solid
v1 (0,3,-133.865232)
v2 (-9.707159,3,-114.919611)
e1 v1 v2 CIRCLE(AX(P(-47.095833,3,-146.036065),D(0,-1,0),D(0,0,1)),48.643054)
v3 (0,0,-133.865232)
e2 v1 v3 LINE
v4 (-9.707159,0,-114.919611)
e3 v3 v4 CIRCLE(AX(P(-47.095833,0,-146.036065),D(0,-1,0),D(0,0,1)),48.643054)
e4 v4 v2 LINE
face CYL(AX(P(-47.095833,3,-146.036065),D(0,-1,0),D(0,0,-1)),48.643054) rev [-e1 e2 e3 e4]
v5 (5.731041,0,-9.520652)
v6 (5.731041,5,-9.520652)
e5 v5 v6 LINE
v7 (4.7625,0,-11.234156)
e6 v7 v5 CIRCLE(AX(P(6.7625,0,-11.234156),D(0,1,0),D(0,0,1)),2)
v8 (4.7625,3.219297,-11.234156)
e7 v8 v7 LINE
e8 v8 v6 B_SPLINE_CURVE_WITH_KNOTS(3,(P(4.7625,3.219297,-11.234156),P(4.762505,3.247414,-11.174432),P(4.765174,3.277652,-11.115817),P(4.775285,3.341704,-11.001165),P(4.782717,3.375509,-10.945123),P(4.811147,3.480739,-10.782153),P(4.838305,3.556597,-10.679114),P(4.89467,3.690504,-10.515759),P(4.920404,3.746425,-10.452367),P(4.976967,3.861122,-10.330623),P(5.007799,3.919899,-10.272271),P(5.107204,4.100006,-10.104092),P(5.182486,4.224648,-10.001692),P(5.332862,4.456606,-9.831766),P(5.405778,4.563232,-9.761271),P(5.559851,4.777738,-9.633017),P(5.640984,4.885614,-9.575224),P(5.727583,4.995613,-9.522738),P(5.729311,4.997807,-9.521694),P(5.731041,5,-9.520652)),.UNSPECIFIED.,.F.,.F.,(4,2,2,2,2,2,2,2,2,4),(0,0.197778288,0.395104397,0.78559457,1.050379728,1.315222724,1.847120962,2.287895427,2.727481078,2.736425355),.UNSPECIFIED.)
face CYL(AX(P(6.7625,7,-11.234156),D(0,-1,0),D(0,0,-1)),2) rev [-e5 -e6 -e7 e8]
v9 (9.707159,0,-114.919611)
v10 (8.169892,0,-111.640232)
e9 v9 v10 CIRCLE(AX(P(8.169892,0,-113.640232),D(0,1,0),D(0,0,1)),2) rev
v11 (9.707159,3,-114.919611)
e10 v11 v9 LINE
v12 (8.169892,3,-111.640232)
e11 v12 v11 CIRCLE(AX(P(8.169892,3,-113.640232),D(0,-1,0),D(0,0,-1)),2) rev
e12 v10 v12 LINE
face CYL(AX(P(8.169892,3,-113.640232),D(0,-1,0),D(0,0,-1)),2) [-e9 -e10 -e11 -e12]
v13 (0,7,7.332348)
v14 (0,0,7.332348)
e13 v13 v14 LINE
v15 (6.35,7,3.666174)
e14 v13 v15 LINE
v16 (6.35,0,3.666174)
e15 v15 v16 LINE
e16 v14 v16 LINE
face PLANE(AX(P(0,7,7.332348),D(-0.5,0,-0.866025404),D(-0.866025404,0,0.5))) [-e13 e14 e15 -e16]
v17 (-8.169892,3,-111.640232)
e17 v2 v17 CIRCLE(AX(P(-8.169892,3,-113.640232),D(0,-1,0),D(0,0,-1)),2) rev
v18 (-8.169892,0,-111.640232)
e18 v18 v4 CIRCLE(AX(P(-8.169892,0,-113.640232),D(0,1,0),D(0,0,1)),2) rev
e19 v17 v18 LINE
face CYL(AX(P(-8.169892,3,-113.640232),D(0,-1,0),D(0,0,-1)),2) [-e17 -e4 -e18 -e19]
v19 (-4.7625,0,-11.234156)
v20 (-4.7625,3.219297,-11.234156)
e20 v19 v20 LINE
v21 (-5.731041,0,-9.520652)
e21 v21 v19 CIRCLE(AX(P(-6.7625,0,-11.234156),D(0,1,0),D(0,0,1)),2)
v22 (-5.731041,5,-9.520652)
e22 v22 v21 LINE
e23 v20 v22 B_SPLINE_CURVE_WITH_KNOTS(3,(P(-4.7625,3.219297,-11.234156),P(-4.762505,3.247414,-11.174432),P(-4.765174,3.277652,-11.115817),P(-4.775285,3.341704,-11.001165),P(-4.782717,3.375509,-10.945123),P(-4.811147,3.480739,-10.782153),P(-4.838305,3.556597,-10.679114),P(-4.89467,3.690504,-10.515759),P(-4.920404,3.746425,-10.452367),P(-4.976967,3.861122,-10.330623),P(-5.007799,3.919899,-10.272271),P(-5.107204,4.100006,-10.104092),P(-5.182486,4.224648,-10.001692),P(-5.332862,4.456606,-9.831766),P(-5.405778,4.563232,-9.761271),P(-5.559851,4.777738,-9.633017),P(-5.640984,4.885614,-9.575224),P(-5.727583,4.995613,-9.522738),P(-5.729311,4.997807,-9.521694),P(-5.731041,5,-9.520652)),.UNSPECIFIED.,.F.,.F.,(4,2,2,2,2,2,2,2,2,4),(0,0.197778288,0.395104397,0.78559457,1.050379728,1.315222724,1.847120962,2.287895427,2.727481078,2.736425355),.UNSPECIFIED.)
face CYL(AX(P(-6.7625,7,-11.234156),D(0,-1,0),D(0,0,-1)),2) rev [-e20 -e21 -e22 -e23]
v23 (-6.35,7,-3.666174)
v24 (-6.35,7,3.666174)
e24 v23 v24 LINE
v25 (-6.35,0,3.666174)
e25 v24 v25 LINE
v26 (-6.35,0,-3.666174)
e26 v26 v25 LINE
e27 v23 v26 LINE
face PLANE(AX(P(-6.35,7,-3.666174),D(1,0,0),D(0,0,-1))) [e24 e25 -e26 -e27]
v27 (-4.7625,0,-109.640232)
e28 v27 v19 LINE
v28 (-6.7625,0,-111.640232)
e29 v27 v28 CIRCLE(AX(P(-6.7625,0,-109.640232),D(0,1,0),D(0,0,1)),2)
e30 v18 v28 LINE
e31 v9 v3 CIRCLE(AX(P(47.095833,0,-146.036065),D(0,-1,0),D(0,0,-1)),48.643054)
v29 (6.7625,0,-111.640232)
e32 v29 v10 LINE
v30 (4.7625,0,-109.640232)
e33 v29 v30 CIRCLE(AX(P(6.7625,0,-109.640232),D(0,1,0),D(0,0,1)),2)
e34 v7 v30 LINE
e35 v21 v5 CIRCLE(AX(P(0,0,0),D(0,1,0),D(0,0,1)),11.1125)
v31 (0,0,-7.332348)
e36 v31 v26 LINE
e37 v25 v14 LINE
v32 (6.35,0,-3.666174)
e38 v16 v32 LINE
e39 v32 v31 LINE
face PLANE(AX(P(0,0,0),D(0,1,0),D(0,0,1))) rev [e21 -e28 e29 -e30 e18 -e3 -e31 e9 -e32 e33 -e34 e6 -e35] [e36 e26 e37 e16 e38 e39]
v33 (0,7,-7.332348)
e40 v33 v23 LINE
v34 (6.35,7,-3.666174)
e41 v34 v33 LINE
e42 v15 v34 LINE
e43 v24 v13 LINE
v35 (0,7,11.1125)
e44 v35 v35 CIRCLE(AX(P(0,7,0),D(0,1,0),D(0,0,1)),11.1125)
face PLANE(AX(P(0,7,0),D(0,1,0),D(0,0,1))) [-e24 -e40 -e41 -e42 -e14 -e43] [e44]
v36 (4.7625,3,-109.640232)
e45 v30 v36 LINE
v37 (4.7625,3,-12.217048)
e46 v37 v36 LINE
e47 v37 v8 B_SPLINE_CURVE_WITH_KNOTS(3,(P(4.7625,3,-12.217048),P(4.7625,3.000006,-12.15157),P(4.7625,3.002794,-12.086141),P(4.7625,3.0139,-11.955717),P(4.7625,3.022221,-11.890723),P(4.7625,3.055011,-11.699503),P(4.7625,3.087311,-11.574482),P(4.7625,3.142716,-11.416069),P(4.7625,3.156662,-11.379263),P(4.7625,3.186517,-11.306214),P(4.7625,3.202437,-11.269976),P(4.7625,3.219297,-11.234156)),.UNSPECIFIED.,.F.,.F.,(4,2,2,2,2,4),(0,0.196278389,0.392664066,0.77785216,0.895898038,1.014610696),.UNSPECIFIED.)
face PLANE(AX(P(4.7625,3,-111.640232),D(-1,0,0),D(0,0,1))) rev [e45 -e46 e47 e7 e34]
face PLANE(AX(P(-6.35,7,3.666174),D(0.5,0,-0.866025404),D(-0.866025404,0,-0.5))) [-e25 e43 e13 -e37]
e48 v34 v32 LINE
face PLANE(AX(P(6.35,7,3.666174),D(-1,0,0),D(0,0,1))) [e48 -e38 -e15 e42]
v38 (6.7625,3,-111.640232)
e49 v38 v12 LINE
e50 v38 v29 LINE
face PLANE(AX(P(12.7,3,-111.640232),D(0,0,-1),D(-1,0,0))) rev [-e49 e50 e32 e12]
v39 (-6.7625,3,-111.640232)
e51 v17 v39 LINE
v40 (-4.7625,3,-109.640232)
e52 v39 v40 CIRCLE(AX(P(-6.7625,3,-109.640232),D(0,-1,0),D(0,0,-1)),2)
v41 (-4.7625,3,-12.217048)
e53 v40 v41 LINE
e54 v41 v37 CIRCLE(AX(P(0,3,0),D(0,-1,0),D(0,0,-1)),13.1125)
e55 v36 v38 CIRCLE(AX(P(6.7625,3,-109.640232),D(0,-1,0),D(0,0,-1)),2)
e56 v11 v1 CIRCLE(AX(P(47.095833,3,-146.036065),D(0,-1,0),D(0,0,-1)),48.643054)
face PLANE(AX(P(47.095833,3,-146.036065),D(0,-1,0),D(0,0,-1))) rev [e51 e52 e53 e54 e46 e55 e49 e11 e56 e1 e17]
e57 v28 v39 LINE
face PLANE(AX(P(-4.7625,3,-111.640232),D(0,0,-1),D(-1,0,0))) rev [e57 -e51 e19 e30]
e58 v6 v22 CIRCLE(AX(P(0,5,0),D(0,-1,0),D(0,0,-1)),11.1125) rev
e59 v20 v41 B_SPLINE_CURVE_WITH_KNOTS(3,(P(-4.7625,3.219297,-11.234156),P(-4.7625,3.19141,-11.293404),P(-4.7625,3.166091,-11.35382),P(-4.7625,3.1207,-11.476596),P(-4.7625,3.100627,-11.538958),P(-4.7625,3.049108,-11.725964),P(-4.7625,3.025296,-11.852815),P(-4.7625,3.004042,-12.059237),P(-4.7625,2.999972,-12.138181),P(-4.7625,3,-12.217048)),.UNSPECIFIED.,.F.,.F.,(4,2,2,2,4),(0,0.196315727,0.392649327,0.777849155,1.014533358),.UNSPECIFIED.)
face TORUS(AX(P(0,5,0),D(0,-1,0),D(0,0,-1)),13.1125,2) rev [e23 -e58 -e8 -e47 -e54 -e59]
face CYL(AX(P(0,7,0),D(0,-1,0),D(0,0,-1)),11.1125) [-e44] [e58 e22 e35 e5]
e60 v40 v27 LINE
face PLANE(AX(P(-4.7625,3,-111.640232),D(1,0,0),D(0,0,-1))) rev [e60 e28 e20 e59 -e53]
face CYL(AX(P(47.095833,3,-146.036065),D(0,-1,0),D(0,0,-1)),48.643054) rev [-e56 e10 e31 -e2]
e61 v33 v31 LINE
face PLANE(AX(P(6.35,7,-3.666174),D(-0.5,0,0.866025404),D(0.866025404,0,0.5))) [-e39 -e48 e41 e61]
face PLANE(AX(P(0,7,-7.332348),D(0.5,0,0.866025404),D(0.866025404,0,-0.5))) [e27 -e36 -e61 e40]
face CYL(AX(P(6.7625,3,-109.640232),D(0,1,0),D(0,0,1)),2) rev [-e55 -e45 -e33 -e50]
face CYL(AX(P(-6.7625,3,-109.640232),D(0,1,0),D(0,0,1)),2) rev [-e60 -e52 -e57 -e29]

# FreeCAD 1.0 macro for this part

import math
import FreeCAD as App
import Part
import Sketcher
Q = App.Units.Quantity


def edges_at(feature, points):
    """Names of the edges that pass closest to the given points."""
    edges = feature.Shape.Edges
    near = lambda p: min(range(len(edges)), key=lambda i: edges[i].distToShape(Part.Vertex(*p))[0])
    return sorted({f"Edge{near(p) + 1}" for p in points})

doc = App.newDocument("Part")
body = doc.addObject("PartDesign::Body", "Body")

# Sketch on XZ plane
sketch1 = body.newObject("Sketcher::SketchObject", "Sketch")
sketch1.AttachmentSupport = (doc.getObject("XZ_Plane"), [""])
sketch1.MapMode = "FlatFace"
sketch1.addGeometry(Part.Circle(App.Vector(0, 0, 0), App.Vector(0, 0, 1), 11), False)
sketch1.addGeometry(Part.LineSegment(App.Vector(0, -7, 0), App.Vector(6, -4, 0)), False)
sketch1.addGeometry(Part.LineSegment(App.Vector(6, -4, 0), App.Vector(6, 4, 0)), False)
sketch1.addGeometry(Part.LineSegment(App.Vector(6, 4, 0), App.Vector(0, 7, 0)), False)
sketch1.addGeometry(Part.LineSegment(App.Vector(0, 7, 0), App.Vector(-6, 4, 0)), False)
sketch1.addGeometry(Part.LineSegment(App.Vector(-6, 4, 0), App.Vector(-6, -4, 0)), False)
sketch1.addGeometry(Part.LineSegment(App.Vector(-6, -4, 0), App.Vector(0, -7, 0)), False)
sketch1.addConstraint(Sketcher.Constraint("Coincident", 1, 2, 2, 1))
sketch1.addConstraint(Sketcher.Constraint("Coincident", 2, 2, 3, 1))
sketch1.addConstraint(Sketcher.Constraint("Coincident", 3, 2, 4, 1))
sketch1.addConstraint(Sketcher.Constraint("Coincident", 4, 2, 5, 1))
sketch1.addConstraint(Sketcher.Constraint("Coincident", 5, 2, 6, 1))
sketch1.addConstraint(Sketcher.Constraint("Coincident", 6, 2, 1, 1))
sketch1.addConstraint(Sketcher.Constraint("Vertical", 2))
sketch1.addConstraint(Sketcher.Constraint("Vertical", 5))
sketch1.addConstraint(Sketcher.Constraint("Coincident", 0, 3, -1, 1))
sketch1.addConstraint(Sketcher.Constraint("Symmetric", 1, 2, 4, 2, -1, 1))
sketch1.addConstraint(Sketcher.Constraint("Symmetric", 3, 2, 6, 2, -1, 1))
sketch1.addConstraint(Sketcher.Constraint("PointOnObject", 3, 2, -2))
sketch1.addConstraint(Sketcher.Constraint("Parallel", 3, 6))
sketch1.addConstraint(Sketcher.Constraint("Horizontal", 2, 2, 4, 2))
sketch1.addConstraint(Sketcher.Constraint("Diameter", 0, Q("0.875 in")))
sketch1.addConstraint(Sketcher.Constraint("Angle", 1, Q("30 deg")))
sketch1.addConstraint(Sketcher.Constraint("DistanceX", 4, 2, 2, 2, Q("0.5 in")))
sketch1.addConstraint(Sketcher.Constraint("DistanceY", 2, 1, 2, 2, 7.332348))
pad1 = body.newObject("PartDesign::Pad", "Pad")
pad1.Profile = sketch1
pad1.Length = 7
pad1.Reversed = True

# Sketch on XZ plane
sketch2 = body.newObject("Sketcher::SketchObject", "Sketch001")
sketch2.AttachmentSupport = (doc.getObject("XZ_Plane"), [""])
sketch2.MapMode = "FlatFace"
sketch2.addGeometry(Part.LineSegment(App.Vector(-13, -112, 0), App.Vector(-5, -112, 0)), False)
sketch2.addGeometry(Part.LineSegment(App.Vector(-5, -112, 0), App.Vector(-5, -10, 0)), False)
sketch2.addGeometry(Part.LineSegment(App.Vector(-5, -10, 0), App.Vector(5, -10, 0)), False)
sketch2.addGeometry(Part.LineSegment(App.Vector(5, -10, 0), App.Vector(5, -112, 0)), False)
sketch2.addGeometry(Part.LineSegment(App.Vector(5, -112, 0), App.Vector(13, -112, 0)), False)
sketch2.addGeometry(Part.ArcOfCircle(Part.Circle(App.Vector(47, -146, 0), App.Vector(0, 0, 1), 49), math.radians(135), math.radians(166)), False)
sketch2.addGeometry(Part.ArcOfCircle(Part.Circle(App.Vector(-47, -146, 0), App.Vector(0, 0, 1), 49), math.radians(14), math.radians(45)), False)
sketch2.addConstraint(Sketcher.Constraint("Coincident", 0, 2, 1, 1))
sketch2.addConstraint(Sketcher.Constraint("Coincident", 1, 2, 2, 1))
sketch2.addConstraint(Sketcher.Constraint("Coincident", 2, 2, 3, 1))
sketch2.addConstraint(Sketcher.Constraint("Coincident", 3, 2, 4, 1))
sketch2.addConstraint(Sketcher.Constraint("Coincident", 4, 2, 5, 1))
sketch2.addConstraint(Sketcher.Constraint("Coincident", 5, 2, 6, 1))
sketch2.addConstraint(Sketcher.Constraint("Coincident", 6, 2, 0, 1))
sketch2.addConstraint(Sketcher.Constraint("Horizontal", 0))
sketch2.addConstraint(Sketcher.Constraint("Vertical", 1))
sketch2.addConstraint(Sketcher.Constraint("Horizontal", 2))
sketch2.addConstraint(Sketcher.Constraint("Vertical", 3))
sketch2.addConstraint(Sketcher.Constraint("Horizontal", 4))
sketch2.addConstraint(Sketcher.Constraint("Equal", 5, 6))
sketch2.addConstraint(Sketcher.Constraint("Symmetric", 5, 3, 6, 3, -2))
sketch2.addConstraint(Sketcher.Constraint("Symmetric", 0, 2, 3, 2, -2))
sketch2.addConstraint(Sketcher.Constraint("DistanceY", 1, 1, 1, 2, Q("4 in")))
sketch2.addConstraint(Sketcher.Constraint("DistanceX", 6, 2, 4, 2, Q("1 in")))
sketch2.addConstraint(Sketcher.Constraint("DistanceX", 0, 1, 0, 2, Q("0.3125 in")))
sketch2.addConstraint(Sketcher.Constraint("DistanceY", 5, 2, 0, 2, Q("0.875 in")))
sketch2.addConstraint(Sketcher.Constraint("Radius", 5, 48.643054))
sketch2.addConstraint(Sketcher.Constraint("DistanceY", 0, 2, -1, 1, 111.640232))
pad2 = body.newObject("PartDesign::Pad", "Pad001")
pad2.Profile = sketch2
pad2.Length = 3
pad2.Reversed = True
doc.recompute()

fillet = body.newObject("PartDesign::Fillet", "Fillet")
fillet.Base = (pad2, edges_at(pad2, [
    (0, 3, -11.113),
    (-4.763, 1.5, -111.64),
    (-4.763, 1.5, -10.04),
    (4.763, 1.5, -10.04),
    (4.763, 1.5, -111.64),
    (12.7, 1.5, -111.64),
    (-12.7, 1.5, -111.64),
]))
fillet.Radius = 2

doc.recompute()
